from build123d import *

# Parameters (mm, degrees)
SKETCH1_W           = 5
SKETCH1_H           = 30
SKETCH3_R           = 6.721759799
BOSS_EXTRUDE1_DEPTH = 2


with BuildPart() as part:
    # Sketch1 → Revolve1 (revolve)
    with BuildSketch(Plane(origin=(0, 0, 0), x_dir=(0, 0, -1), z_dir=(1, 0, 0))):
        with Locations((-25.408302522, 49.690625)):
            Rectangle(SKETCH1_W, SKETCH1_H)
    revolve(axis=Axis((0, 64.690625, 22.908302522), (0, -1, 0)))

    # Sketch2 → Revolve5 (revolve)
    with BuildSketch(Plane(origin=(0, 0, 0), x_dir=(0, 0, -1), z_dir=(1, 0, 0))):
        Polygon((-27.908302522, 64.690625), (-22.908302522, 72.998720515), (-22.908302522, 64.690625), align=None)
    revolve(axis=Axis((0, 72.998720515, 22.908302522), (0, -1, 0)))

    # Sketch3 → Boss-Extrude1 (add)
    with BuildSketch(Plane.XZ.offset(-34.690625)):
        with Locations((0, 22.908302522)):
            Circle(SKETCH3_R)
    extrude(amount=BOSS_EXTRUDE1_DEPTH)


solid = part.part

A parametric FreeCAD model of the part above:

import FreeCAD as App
import Part
import Sketcher

V = App.Vector

doc = App.newDocument("Part")
body = doc.addObject("PartDesign::Body", "Body")

# Sketch on YZ plane
sketch1 = doc.addObject("Sketcher::SketchObject", "Sketch")
body.addObject(sketch1)
sketch1.AttachmentSupport = (doc.YZ_Plane, [""])
sketch1.MapMode = "FlatFace"
sketch1.addGeometry([
    Part.LineSegment(V(65, 28, 0), V(35, 28, 0)),
    Part.LineSegment(V(35, 28, 0), V(35, 23, 0)),
    Part.LineSegment(V(35, 23, 0), V(65, 23, 0)),
    Part.LineSegment(V(65, 23, 0), V(65, 28, 0)),
], False)
sketch1.addGeometry(Part.LineSegment(V(65, 23, 0), V(35, 23, 0)), True)  # axis
sketch1.addConstraint([
    Sketcher.Constraint("Coincident", 0, 2, 1, 1),
    Sketcher.Constraint("Coincident", 1, 2, 2, 1),
    Sketcher.Constraint("Coincident", 2, 2, 3, 1),
    Sketcher.Constraint("Coincident", 3, 2, 0, 1),
    Sketcher.Constraint("Horizontal", 0),
    Sketcher.Constraint("Vertical", 1),
    Sketcher.Constraint("Horizontal", 2),
    Sketcher.Constraint("Vertical", 3),
    Sketcher.Constraint("Horizontal", 4),
    Sketcher.Constraint("Coincident", 4, 1, 2, 2),
    Sketcher.Constraint("Vertical", 0, 2, 4, 2),
    Sketcher.Constraint("DistanceX", 0, 2, 0, 1, 30.0),
    Sketcher.Constraint("DistanceY", 1, 2, 1, 1, 5.0),
    Sketcher.Constraint("DistanceX", -1, 1, 0, 2, 34.690625),
    Sketcher.Constraint("DistanceY", -1, 1, 0, 2, 27.908303),
])
revolution = doc.addObject("PartDesign::Revolution", "Revolution")
body.addObject(revolution)
revolution.Profile = sketch1
revolution.ReferenceAxis = (sketch1, ["Axis0"])
revolution.Angle = 360

# Sketch on YZ plane
sketch2 = doc.addObject("Sketcher::SketchObject", "Sketch001")
body.addObject(sketch2)
sketch2.AttachmentSupport = (doc.YZ_Plane, [""])
sketch2.MapMode = "FlatFace"
sketch2.addGeometry([
    Part.LineSegment(V(73, 23, 0), V(65, 28, 0)),
    Part.LineSegment(V(65, 28, 0), V(65, 23, 0)),
    Part.LineSegment(V(65, 23, 0), V(73, 23, 0)),
], False)
sketch2.addGeometry(Part.LineSegment(V(73, 23, 0), V(65, 23, 0)), True)  # axis
sketch2.addConstraint([
    Sketcher.Constraint("Coincident", 0, 2, 1, 1),
    Sketcher.Constraint("Coincident", 1, 2, 2, 1),
    Sketcher.Constraint("Coincident", 2, 2, 0, 1),
    Sketcher.Constraint("Vertical", 1),
    Sketcher.Constraint("Horizontal", 2),
    Sketcher.Constraint("Horizontal", 3),
    Sketcher.Constraint("Coincident", 3, 1, 2, 2),
    Sketcher.Constraint("Vertical", 0, 2, 3, 2),
    Sketcher.Constraint("DistanceY", 1, 2, 1, 1, 5.0),
    Sketcher.Constraint("Distance", 0, 9.696621),
    Sketcher.Constraint("DistanceX", -1, 1, 2, 2, 72.998721),
    Sketcher.Constraint("DistanceY", -1, 1, 0, 2, 27.908303),
])
revolution2 = doc.addObject("PartDesign::Revolution", "Revolution001")
body.addObject(revolution2)
revolution2.Profile = sketch2
revolution2.ReferenceAxis = (sketch2, ["Axis0"])
revolution2.Angle = 360

# Sketch on XZ plane
sketch3 = doc.addObject("Sketcher::SketchObject", "Sketch002")
body.addObject(sketch3)
sketch3.AttachmentSupport = (doc.XZ_Plane, [""])
sketch3.MapMode = "FlatFace"
sketch3.AttachmentOffset = App.Placement(V(0, 0, -34.690625), App.Rotation())
sketch3.addGeometry(Part.Circle(V(0, 23, 0), V(0, 0, 1), 7), False)
sketch3.addConstraint([
    Sketcher.Constraint("PointOnObject", 0, 3, -2),
    Sketcher.Constraint("Diameter", 0, 13.44352),
    Sketcher.Constraint("DistanceY", -1, 1, 0, 3, 22.908303),
])
pad1 = doc.addObject("PartDesign::Pad", "Pad")
body.addObject(pad1)
pad1.Profile = sketch3
pad1.Length = 2

doc.recompute()
